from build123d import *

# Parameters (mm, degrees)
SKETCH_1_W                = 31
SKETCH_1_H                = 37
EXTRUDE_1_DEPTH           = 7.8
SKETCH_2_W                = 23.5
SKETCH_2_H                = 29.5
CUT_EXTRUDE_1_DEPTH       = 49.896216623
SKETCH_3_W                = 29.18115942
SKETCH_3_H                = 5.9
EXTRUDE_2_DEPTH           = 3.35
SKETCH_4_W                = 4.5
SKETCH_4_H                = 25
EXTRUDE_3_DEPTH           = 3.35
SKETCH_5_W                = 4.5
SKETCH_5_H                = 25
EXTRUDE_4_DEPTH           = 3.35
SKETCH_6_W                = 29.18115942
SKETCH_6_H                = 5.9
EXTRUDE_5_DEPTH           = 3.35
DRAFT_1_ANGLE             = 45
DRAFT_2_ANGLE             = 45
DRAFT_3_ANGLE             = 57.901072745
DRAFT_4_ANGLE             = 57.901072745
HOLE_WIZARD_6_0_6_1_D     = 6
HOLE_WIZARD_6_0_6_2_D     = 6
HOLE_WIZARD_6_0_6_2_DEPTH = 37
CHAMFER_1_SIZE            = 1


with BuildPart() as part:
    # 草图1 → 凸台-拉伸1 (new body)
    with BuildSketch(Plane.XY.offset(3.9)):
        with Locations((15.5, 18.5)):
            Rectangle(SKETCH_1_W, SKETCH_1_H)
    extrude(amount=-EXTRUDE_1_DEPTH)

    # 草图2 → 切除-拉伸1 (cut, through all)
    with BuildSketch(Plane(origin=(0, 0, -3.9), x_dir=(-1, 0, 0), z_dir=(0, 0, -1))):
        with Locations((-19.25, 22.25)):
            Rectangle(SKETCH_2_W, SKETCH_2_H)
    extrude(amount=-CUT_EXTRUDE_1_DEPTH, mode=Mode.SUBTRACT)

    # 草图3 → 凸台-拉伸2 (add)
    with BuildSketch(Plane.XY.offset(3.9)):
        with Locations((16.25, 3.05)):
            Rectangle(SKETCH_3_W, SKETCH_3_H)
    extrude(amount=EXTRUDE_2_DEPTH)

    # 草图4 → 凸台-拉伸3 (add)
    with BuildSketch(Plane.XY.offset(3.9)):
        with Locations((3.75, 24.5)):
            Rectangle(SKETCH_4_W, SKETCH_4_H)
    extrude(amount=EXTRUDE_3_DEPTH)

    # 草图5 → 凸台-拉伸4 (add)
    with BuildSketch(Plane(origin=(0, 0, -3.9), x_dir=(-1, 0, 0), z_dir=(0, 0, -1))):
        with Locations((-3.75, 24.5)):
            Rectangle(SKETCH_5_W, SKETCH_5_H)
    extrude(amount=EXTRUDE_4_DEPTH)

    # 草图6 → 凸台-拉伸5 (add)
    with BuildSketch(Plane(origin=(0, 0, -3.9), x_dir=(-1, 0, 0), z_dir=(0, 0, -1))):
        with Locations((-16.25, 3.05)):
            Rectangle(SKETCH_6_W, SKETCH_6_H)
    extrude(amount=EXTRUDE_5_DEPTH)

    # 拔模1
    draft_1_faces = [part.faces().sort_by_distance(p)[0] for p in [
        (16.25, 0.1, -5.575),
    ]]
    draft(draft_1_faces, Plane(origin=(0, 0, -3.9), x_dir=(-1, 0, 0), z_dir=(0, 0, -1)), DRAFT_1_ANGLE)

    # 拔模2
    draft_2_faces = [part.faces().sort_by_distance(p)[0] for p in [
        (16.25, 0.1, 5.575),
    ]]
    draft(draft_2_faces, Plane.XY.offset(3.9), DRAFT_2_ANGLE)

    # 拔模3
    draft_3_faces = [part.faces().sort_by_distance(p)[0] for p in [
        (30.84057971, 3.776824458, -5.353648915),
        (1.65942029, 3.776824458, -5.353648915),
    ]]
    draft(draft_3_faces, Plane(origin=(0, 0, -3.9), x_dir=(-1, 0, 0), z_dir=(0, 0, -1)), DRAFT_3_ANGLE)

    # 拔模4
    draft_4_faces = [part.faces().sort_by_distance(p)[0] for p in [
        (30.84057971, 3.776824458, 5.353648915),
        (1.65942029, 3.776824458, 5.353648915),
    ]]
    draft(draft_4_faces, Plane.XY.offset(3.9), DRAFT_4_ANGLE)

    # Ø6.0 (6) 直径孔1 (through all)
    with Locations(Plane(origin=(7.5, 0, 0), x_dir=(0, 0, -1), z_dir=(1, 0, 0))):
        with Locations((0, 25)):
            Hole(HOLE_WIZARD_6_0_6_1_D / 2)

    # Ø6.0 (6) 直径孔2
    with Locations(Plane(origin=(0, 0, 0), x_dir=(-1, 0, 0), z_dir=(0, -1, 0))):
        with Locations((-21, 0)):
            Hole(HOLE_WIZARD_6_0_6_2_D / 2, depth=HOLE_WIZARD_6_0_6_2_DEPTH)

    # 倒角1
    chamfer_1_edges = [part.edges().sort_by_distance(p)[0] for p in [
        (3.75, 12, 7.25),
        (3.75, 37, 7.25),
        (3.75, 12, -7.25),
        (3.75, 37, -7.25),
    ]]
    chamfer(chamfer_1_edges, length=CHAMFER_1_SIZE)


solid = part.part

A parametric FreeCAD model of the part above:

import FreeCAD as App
import Part
import Sketcher

V = App.Vector


def edges_at(feature, points):
    """Names of the edges that pass closest to the given points."""
    edges = feature.Shape.Edges
    near = lambda p: min(range(len(edges)), key=lambda i: edges[i].distToShape(Part.Vertex(*p))[0])
    return sorted({f"Edge{near(p) + 1}" for p in points})


def faces_at(feature, points):
    """Names of the faces that lie closest to the given points."""
    faces = feature.Shape.Faces
    near = lambda p: min(range(len(faces)), key=lambda i: faces[i].distToShape(Part.Vertex(*p))[0])
    return sorted({f"Face{near(p) + 1}" for p in points})


def add_polygon(sketch, points):
    """Adds a closed chain of lines whose ends are joined by coincident constraints."""
    first, n = sketch.GeometryCount, len(points)
    for a, b in zip(points, points[1:] + points[:1]):
        sketch.addGeometry(Part.LineSegment(App.Vector(*a, 0), App.Vector(*b, 0)), False)
    for i in range(n):
        sketch.addConstraint(Sketcher.Constraint("Coincident", first + i, 2, first + (i + 1) % n, 1))

doc = App.newDocument("Part")
params = doc.addObject("Spreadsheet::Sheet", "Params")
for row, (alias, value) in enumerate([
    ("sketch1_width", "31 mm"),
    ("sketch1_height", "37 mm"),
    ("pad1_length", "7.8 mm"),
    ("sketch2_width", "23.5 mm"),
    ("sketch2_height", "29.5 mm"),
    ("sketch3_height", "5.9 mm"),
    ("pad2_length", "3.35 mm"),
    ("sketch4_height", "25 mm"),
    ("sketch4_width", "4.5 mm"),
    ("pad3_length", "3.35 mm"),
    ("sketch5_height", "25 mm"),
    ("sketch5_width", "4.5 mm"),
    ("pad4_length", "3.35 mm"),
    ("sketch6_height", "5.9 mm"),
    ("pad5_length", "3.35 mm"),
    ("draft_angle", "45 deg"),
    ("draft2_angle", "45 deg"),
    ("draft3_angle", "57.901073 deg"),
    ("draft4_angle", "57.901073 deg"),
    ("sketch7_diameter", "6 mm"),
    ("hole_diameter", "6 mm"),
    ("sketch8_diameter", "6 mm"),
    ("hole2_diameter", "6 mm"),
    ("hole2_depth", "37 mm"),
    ("chamfer_size", "1 mm"),
], start=1):
    params.set(f"A{row}", alias)
    params.set(f"B{row}", "=" + value)
    params.setAlias(f"B{row}", alias)

body = doc.addObject("PartDesign::Body", "Body")

# Sketch on XY plane
sketch1 = body.newObject("Sketcher::SketchObject", "Sketch")
sketch1.AttachmentSupport = (doc.getObject("XY_Plane"), [""])
sketch1.MapMode = "FlatFace"
sketch1.AttachmentOffset = App.Placement(V(0, 0, 3.9), App.Rotation())
add_polygon(sketch1, [(0, 37), (0, 0), (31, 0), (31, 37)])  # lines 0-3
sketch1.addConstraint(Sketcher.Constraint("Vertical", 0))
sketch1.addConstraint(Sketcher.Constraint("Horizontal", 1))
sketch1.addConstraint(Sketcher.Constraint("Vertical", 2))
sketch1.addConstraint(Sketcher.Constraint("Horizontal", 3))
sketch1.addConstraint(Sketcher.Constraint("Coincident", 0, 2, -1, 1))
sketch1.addConstraint(Sketcher.Constraint("DistanceX", 1, 1, 1, 2, 31.0))
sketch1.addConstraint(Sketcher.Constraint("DistanceY", 0, 2, 0, 1, 37.0))
sketch1.setExpression("Constraints[9]", "Params.sketch1_width")
sketch1.setExpression("Constraints[10]", "Params.sketch1_height")
pad1 = body.newObject("PartDesign::Pad", "Pad")
pad1.Profile = sketch1
pad1.setExpression("Length", "Params.pad1_length")
pad1.Reversed = True

# Sketch on XY plane
sketch2 = body.newObject("Sketcher::SketchObject", "Sketch001")
sketch2.AttachmentSupport = (doc.getObject("XY_Plane"), [""])
sketch2.MapMode = "FlatFace"
sketch2.AttachmentOffset = App.Placement(V(0, 0, -3.9), App.Rotation())
add_polygon(sketch2, [(31, 37), (31, 7.5), (7.5, 7.5), (7.5, 37)])  # lines 0-3
sketch2.addConstraint(Sketcher.Constraint("Vertical", 0))
sketch2.addConstraint(Sketcher.Constraint("Horizontal", 1))
sketch2.addConstraint(Sketcher.Constraint("Vertical", 2))
sketch2.addConstraint(Sketcher.Constraint("Horizontal", 3))
sketch2.addConstraint(Sketcher.Constraint("DistanceX", 1, 2, 1, 1, 23.5))
sketch2.addConstraint(Sketcher.Constraint("DistanceY", 0, 2, 0, 1, 29.5))
sketch2.addConstraint(Sketcher.Constraint("DistanceX", -1, 1, 0, 2, 31.0))
sketch2.addConstraint(Sketcher.Constraint("DistanceY", -1, 1, 2, 2, 37.0))
sketch2.setExpression("Constraints[8]", "Params.sketch2_width")
sketch2.setExpression("Constraints[9]", "Params.sketch2_height")
pocket1 = body.newObject("PartDesign::Pocket", "Pocket")
pocket1.Profile = sketch2
pocket1.Type = "ThroughAll"
pocket1.Reversed = True

# Sketch on XY plane
sketch3 = body.newObject("Sketcher::SketchObject", "Sketch002")
sketch3.AttachmentSupport = (doc.getObject("XY_Plane"), [""])
sketch3.MapMode = "FlatFace"
sketch3.AttachmentOffset = App.Placement(V(0, 0, 3.9), App.Rotation())
add_polygon(sketch3, [(1.65942, 6), (1.65942, 0.1), (30.84058, 0.1), (30.84058, 6)])  # lines 0-3
sketch3.addConstraint(Sketcher.Constraint("Vertical", 0))
sketch3.addConstraint(Sketcher.Constraint("Horizontal", 1))
sketch3.addConstraint(Sketcher.Constraint("Vertical", 2))
sketch3.addConstraint(Sketcher.Constraint("Horizontal", 3))
sketch3.addConstraint(Sketcher.Constraint("DistanceY", 0, 2, 0, 1, 5.9))
sketch3.addConstraint(Sketcher.Constraint("DistanceY", -1, 1, 2, 2, 6.0))
sketch3.addConstraint(Sketcher.Constraint("DistanceX", 1, 1, 1, 2, 29.181159))
sketch3.addConstraint(Sketcher.Constraint("DistanceX", -1, 1, 0, 2, 1.65942))
sketch3.setExpression("Constraints[8]", "Params.sketch3_height")
pad2 = body.newObject("PartDesign::Pad", "Pad001")
pad2.Profile = sketch3
pad2.setExpression("Length", "Params.pad2_length")

# Sketch on XY plane
sketch4 = body.newObject("Sketcher::SketchObject", "Sketch003")
sketch4.AttachmentSupport = (doc.getObject("XY_Plane"), [""])
sketch4.MapMode = "FlatFace"
sketch4.AttachmentOffset = App.Placement(V(0, 0, 3.9), App.Rotation())
add_polygon(sketch4, [(1.5, 37), (1.5, 12), (6, 12), (6, 37)])  # lines 0-3
sketch4.addConstraint(Sketcher.Constraint("Vertical", 0))
sketch4.addConstraint(Sketcher.Constraint("Horizontal", 1))
sketch4.addConstraint(Sketcher.Constraint("Vertical", 2))
sketch4.addConstraint(Sketcher.Constraint("Horizontal", 3))
sketch4.addConstraint(Sketcher.Constraint("DistanceY", 0, 2, 0, 1, 25.0))
sketch4.addConstraint(Sketcher.Constraint("DistanceX", 1, 1, 1, 2, 4.5))
sketch4.addConstraint(Sketcher.Constraint("DistanceY", -1, 1, 0, 2, 12.0))
sketch4.addConstraint(Sketcher.Constraint("DistanceX", -1, 1, 1, 2, 6.0))
sketch4.setExpression("Constraints[8]", "Params.sketch4_height")
sketch4.setExpression("Constraints[9]", "Params.sketch4_width")
pad3 = body.newObject("PartDesign::Pad", "Pad002")
pad3.Profile = sketch4
pad3.setExpression("Length", "Params.pad3_length")

# Sketch on XY plane
sketch5 = body.newObject("Sketcher::SketchObject", "Sketch004")
sketch5.AttachmentSupport = (doc.getObject("XY_Plane"), [""])
sketch5.MapMode = "FlatFace"
sketch5.AttachmentOffset = App.Placement(V(0, 0, -3.9), App.Rotation())
add_polygon(sketch5, [(6, 37), (6, 12), (1.5, 12), (1.5, 37)])  # lines 0-3
sketch5.addConstraint(Sketcher.Constraint("Vertical", 0))
sketch5.addConstraint(Sketcher.Constraint("Horizontal", 1))
sketch5.addConstraint(Sketcher.Constraint("Vertical", 2))
sketch5.addConstraint(Sketcher.Constraint("Horizontal", 3))
sketch5.addConstraint(Sketcher.Constraint("DistanceY", 0, 2, 0, 1, 25.0))
sketch5.addConstraint(Sketcher.Constraint("DistanceX", 1, 2, 1, 1, 4.5))
sketch5.addConstraint(Sketcher.Constraint("DistanceX", -1, 1, 0, 2, 6.0))
sketch5.addConstraint(Sketcher.Constraint("DistanceY", -1, 1, 0, 2, 12.0))
sketch5.setExpression("Constraints[8]", "Params.sketch5_height")
sketch5.setExpression("Constraints[9]", "Params.sketch5_width")
pad4 = body.newObject("PartDesign::Pad", "Pad003")
pad4.Profile = sketch5
pad4.setExpression("Length", "Params.pad4_length")
pad4.Reversed = True

# Sketch on XY plane
sketch6 = body.newObject("Sketcher::SketchObject", "Sketch005")
sketch6.AttachmentSupport = (doc.getObject("XY_Plane"), [""])
sketch6.MapMode = "FlatFace"
sketch6.AttachmentOffset = App.Placement(V(0, 0, -3.9), App.Rotation())
add_polygon(sketch6, [(30.84058, 6), (30.84058, 0.1), (1.65942, 0.1), (1.65942, 6)])  # lines 0-3
sketch6.addConstraint(Sketcher.Constraint("Vertical", 0))
sketch6.addConstraint(Sketcher.Constraint("Horizontal", 1))
sketch6.addConstraint(Sketcher.Constraint("Vertical", 2))
sketch6.addConstraint(Sketcher.Constraint("Horizontal", 3))
sketch6.addConstraint(Sketcher.Constraint("DistanceY", 0, 2, 0, 1, 5.9))
sketch6.addConstraint(Sketcher.Constraint("DistanceY", -1, 1, 2, 2, 6.0))
sketch6.addConstraint(Sketcher.Constraint("DistanceX", 1, 2, 1, 1, 29.181159))
sketch6.addConstraint(Sketcher.Constraint("DistanceX", -1, 1, 0, 2, 30.84058))
sketch6.setExpression("Constraints[8]", "Params.sketch6_height")
pad5 = body.newObject("PartDesign::Pad", "Pad004")
pad5.Profile = sketch6
pad5.setExpression("Length", "Params.pad5_length")
pad5.Reversed = True
doc.recompute()

datumplane = body.newObject("PartDesign::Plane", "DatumPlane")
datumplane.AttachmentSupport = (doc.getObject("XY_Plane"), [""])
datumplane.MapMode = "FlatFace"
datumplane.AttachmentOffset = App.Placement(V(0, 0, -3.9), App.Rotation())
draft = body.newObject("PartDesign::Draft", "Draft")
draft.Base = (pad5, faces_at(pad5, [(16.25, 0.1, -5.575)]))
draft.NeutralPlane = (datumplane, [""])
draft.setExpression("Angle", "Params.draft_angle")
draft.Reversed = True
doc.recompute()

datumplane2 = body.newObject("PartDesign::Plane", "DatumPlane001")
datumplane2.AttachmentSupport = (doc.getObject("XY_Plane"), [""])
datumplane2.MapMode = "FlatFace"
datumplane2.AttachmentOffset = App.Placement(V(0, 0, 3.9), App.Rotation())
draft2 = body.newObject("PartDesign::Draft", "Draft001")
draft2.Base = (draft, faces_at(draft, [(16.25, 0.1, 5.575)]))
draft2.NeutralPlane = (datumplane2, [""])
draft2.setExpression("Angle", "Params.draft2_angle")
draft2.Reversed = False
doc.recompute()

datumplane3 = body.newObject("PartDesign::Plane", "DatumPlane002")
datumplane3.AttachmentSupport = (doc.getObject("XY_Plane"), [""])
datumplane3.MapMode = "FlatFace"
datumplane3.AttachmentOffset = App.Placement(V(0, 0, -3.9), App.Rotation())
draft3 = body.newObject("PartDesign::Draft", "Draft002")
draft3.Base = (draft2, faces_at(draft2, [(30.841, 3.05, -5.575), (1.659, 3.05, -5.575)]))
draft3.NeutralPlane = (datumplane3, [""])
draft3.setExpression("Angle", "Params.draft3_angle")
draft3.Reversed = True
doc.recompute()

datumplane4 = body.newObject("PartDesign::Plane", "DatumPlane003")
datumplane4.AttachmentSupport = (doc.getObject("XY_Plane"), [""])
datumplane4.MapMode = "FlatFace"
datumplane4.AttachmentOffset = App.Placement(V(0, 0, 3.9), App.Rotation())
draft4 = body.newObject("PartDesign::Draft", "Draft003")
draft4.Base = (draft3, faces_at(draft3, [(30.841, 3.05, 5.575), (1.659, 3.05, 5.575)]))
draft4.NeutralPlane = (datumplane4, [""])
draft4.setExpression("Angle", "Params.draft4_angle")
draft4.Reversed = False

# Sketch on YZ plane
sketch7 = body.newObject("Sketcher::SketchObject", "Sketch006")
sketch7.AttachmentSupport = (doc.getObject("YZ_Plane"), [""])
sketch7.MapMode = "FlatFace"
sketch7.AttachmentOffset = App.Placement(V(0, 0, 7.5), App.Rotation())
sketch7.addGeometry(Part.Circle(V(25, 0, 0), V(0, 0, 1), 3), False)
sketch7.addConstraint(Sketcher.Constraint("PointOnObject", 0, 3, -1))
sketch7.addConstraint(Sketcher.Constraint("Diameter", 0, 6.0))
sketch7.addConstraint(Sketcher.Constraint("DistanceX", -1, 1, 0, 3, 25.0))
sketch7.setExpression("Constraints[1]", "Params.sketch7_diameter")
doc.recompute()
hole = body.newObject("PartDesign::Hole", "Hole")
hole.Profile = sketch7
hole.ThreadType = "None"
hole.setExpression("Diameter", "Params.hole_diameter")
hole.DepthType = "ThroughAll"

# Sketch on XZ plane
sketch8 = body.newObject("Sketcher::SketchObject", "Sketch007")
sketch8.AttachmentSupport = (doc.getObject("XZ_Plane"), [""])
sketch8.MapMode = "FlatFace"
sketch8.addGeometry(Part.Circle(V(21, 0, 0), V(0, 0, 1), 3), False)
sketch8.addConstraint(Sketcher.Constraint("PointOnObject", 0, 3, -1))
sketch8.addConstraint(Sketcher.Constraint("Diameter", 0, 6.0))
sketch8.addConstraint(Sketcher.Constraint("DistanceX", -1, 1, 0, 3, 21.0))
sketch8.setExpression("Constraints[1]", "Params.sketch8_diameter")
doc.recompute()
hole2 = body.newObject("PartDesign::Hole", "Hole001")
hole2.Profile = sketch8
hole2.ThreadType = "None"
hole2.setExpression("Diameter", "Params.hole2_diameter")
hole2.DepthType = "Dimension"
hole2.setExpression("Depth", "Params.hole2_depth")
hole2.DrillPoint = "Flat"
doc.recompute()

chamfer = body.newObject("PartDesign::Chamfer", "Chamfer")
chamfer.Base = (hole2, edges_at(hole2, [
    (3.75, 12, 7.25),
    (3.75, 37, 7.25),
    (3.75, 12, -7.25),
    (3.75, 37, -7.25),
]))
chamfer.setExpression("Size", "Params.chamfer_size")

doc.recompute()
